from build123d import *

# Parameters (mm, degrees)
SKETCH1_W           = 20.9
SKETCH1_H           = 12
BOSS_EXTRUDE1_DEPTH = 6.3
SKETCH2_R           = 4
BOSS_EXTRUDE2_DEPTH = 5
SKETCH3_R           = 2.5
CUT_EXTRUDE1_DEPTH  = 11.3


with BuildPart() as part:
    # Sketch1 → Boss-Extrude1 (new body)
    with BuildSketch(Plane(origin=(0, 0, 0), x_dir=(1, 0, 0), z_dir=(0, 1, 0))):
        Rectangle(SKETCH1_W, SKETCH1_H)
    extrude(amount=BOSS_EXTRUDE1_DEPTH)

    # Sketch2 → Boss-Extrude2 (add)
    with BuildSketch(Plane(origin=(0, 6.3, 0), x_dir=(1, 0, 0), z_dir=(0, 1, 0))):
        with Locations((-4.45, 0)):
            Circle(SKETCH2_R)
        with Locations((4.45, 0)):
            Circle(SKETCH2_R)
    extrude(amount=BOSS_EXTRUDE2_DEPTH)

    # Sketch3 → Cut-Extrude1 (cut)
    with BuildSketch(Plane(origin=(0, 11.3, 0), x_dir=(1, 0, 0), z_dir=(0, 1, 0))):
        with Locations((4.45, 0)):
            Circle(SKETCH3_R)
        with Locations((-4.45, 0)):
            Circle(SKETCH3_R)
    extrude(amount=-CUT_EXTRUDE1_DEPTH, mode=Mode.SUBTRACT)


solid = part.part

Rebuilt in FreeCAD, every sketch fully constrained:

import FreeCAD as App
import Part
import Sketcher
from FreeCAD import Vector
Q = App.Units.Quantity


def add_polygon(sketch, points):
    """Adds a closed chain of lines whose ends are joined by coincident constraints."""
    first, n = sketch.GeometryCount, len(points)
    for a, b in zip(points, points[1:] + points[:1]):
        sketch.addGeometry(Part.LineSegment(App.Vector(*a, 0), App.Vector(*b, 0)), False)
    for i in range(n):
        sketch.addConstraint(Sketcher.Constraint("Coincident", first + i, 2, first + (i + 1) % n, 1))

doc = App.newDocument("Part")
body = doc.addObject("PartDesign::Body", "Body")

# Sketch on XZ plane
sketch1 = body.newObject("Sketcher::SketchObject", "Sketch")
sketch1.AttachmentSupport = (doc.getObject("XZ_Plane"), [""])
sketch1.MapMode = "FlatFace"
add_polygon(sketch1, [(-10, -6), (-10, 6), (10, 6), (10, -6)])  # lines 0-3
sketch1.addConstraint([
    Sketcher.Constraint("Vertical", 0),
    Sketcher.Constraint("Horizontal", 1),
    Sketcher.Constraint("Vertical", 2),
    Sketcher.Constraint("Horizontal", 3),
    Sketcher.Constraint("Symmetric", 0, 2, 2, 2, -1, 1),
    Sketcher.Constraint("DistanceY", 0, 1, 0, 2, Q("12 mm")),
    Sketcher.Constraint("DistanceX", 1, 1, 1, 2, Q("20.9 mm")),
])
pad1 = body.newObject("PartDesign::Pad", "Pad")
pad1.Profile = sketch1
pad1.Length = 6.3
pad1.Reversed = True

# Sketch on XZ plane
sketch2 = body.newObject("Sketcher::SketchObject", "Sketch001")
sketch2.AttachmentSupport = (doc.getObject("XZ_Plane"), [""])
sketch2.MapMode = "FlatFace"
sketch2.AttachmentOffset = App.Placement(Vector(0, 0, -6.3), App.Rotation())
sketch2.addGeometry([
    Part.Circle(Vector(-4.5, 0, 0), Vector(0, 0, 1), 4),
    Part.Circle(Vector(4.5, 0, 0), Vector(0, 0, 1), 4),
], False)
sketch2.addConstraint([
    Sketcher.Constraint("Equal", 0, 1),
    Sketcher.Constraint("Symmetric", 0, 3, 1, 3, -1, 1),
    Sketcher.Constraint("PointOnObject", 0, 3, -1),
    Sketcher.Constraint("Diameter", 0, Q("8 mm")),
    Sketcher.Constraint("DistanceX", 0, 3, 1, 3, Q("8.9 mm")),
])
pad2 = body.newObject("PartDesign::Pad", "Pad001")
pad2.Profile = sketch2
pad2.Length = 5
pad2.Reversed = True

# Sketch on XZ plane
sketch3 = body.newObject("Sketcher::SketchObject", "Sketch002")
sketch3.AttachmentSupport = (doc.getObject("XZ_Plane"), [""])
sketch3.MapMode = "FlatFace"
sketch3.AttachmentOffset = App.Placement(Vector(0, 0, -11.3), App.Rotation())
sketch3.addGeometry([
    Part.Circle(Vector(4.5, 0, 0), Vector(0, 0, 1), 2.5),
    Part.Circle(Vector(-4.5, 0, 0), Vector(0, 0, 1), 2.5),
], False)
sketch3.addConstraint([
    Sketcher.Constraint("Equal", 0, 1),
    Sketcher.Constraint("Symmetric", 0, 3, 1, 3, -1, 1),
    Sketcher.Constraint("PointOnObject", 0, 3, -1),
    Sketcher.Constraint("Diameter", 0, Q("5 mm")),
    Sketcher.Constraint("DistanceX", 1, 3, 0, 3, Q("8.9 mm")),
])
pocket1 = body.newObject("PartDesign::Pocket", "Pocket")
pocket1.Profile = sketch3
pocket1.Length = 11.3
pocket1.Reversed = True

doc.recompute()
